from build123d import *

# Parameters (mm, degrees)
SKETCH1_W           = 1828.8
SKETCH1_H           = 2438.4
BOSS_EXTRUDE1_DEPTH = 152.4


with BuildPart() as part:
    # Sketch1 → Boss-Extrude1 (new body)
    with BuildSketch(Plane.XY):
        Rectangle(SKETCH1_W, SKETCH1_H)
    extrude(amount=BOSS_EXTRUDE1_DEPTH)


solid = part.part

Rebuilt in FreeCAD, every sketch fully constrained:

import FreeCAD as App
import Part
import Sketcher
Q = App.Units.Quantity

doc = App.newDocument("Part")
body = doc.addObject("PartDesign::Body", "Body")

# Sketch on XY plane
sketch1 = body.newObject("Sketcher::SketchObject", "Sketch")
sketch1.AttachmentSupport = (doc.getObject("XY_Plane"), [""])
sketch1.MapMode = "FlatFace"
sketch1.addGeometry(Part.LineSegment(App.Vector(-914, 1219, 0), App.Vector(-914, -1219, 0)), False)
sketch1.addGeometry(Part.LineSegment(App.Vector(-914, -1219, 0), App.Vector(914, -1219, 0)), False)
sketch1.addGeometry(Part.LineSegment(App.Vector(914, -1219, 0), App.Vector(914, 1219, 0)), False)
sketch1.addGeometry(Part.LineSegment(App.Vector(914, 1219, 0), App.Vector(-914, 1219, 0)), False)
sketch1.addConstraint(Sketcher.Constraint("Coincident", 0, 2, 1, 1))
sketch1.addConstraint(Sketcher.Constraint("Coincident", 1, 2, 2, 1))
sketch1.addConstraint(Sketcher.Constraint("Coincident", 2, 2, 3, 1))
sketch1.addConstraint(Sketcher.Constraint("Coincident", 3, 2, 0, 1))
sketch1.addConstraint(Sketcher.Constraint("Vertical", 0))
sketch1.addConstraint(Sketcher.Constraint("Horizontal", 1))
sketch1.addConstraint(Sketcher.Constraint("Vertical", 2))
sketch1.addConstraint(Sketcher.Constraint("Horizontal", 3))
sketch1.addConstraint(Sketcher.Constraint("Symmetric", 0, 2, 2, 2, -1, 1))
sketch1.addConstraint(Sketcher.Constraint("DistanceX", 1, 1, 1, 2, Q("72 in")))
sketch1.addConstraint(Sketcher.Constraint("DistanceY", 0, 2, 0, 1, Q("96 in")))
pad1 = body.newObject("PartDesign::Pad", "Pad")
pad1.Profile = sketch1
pad1.Length = Q("6 in")

doc.recompute()
